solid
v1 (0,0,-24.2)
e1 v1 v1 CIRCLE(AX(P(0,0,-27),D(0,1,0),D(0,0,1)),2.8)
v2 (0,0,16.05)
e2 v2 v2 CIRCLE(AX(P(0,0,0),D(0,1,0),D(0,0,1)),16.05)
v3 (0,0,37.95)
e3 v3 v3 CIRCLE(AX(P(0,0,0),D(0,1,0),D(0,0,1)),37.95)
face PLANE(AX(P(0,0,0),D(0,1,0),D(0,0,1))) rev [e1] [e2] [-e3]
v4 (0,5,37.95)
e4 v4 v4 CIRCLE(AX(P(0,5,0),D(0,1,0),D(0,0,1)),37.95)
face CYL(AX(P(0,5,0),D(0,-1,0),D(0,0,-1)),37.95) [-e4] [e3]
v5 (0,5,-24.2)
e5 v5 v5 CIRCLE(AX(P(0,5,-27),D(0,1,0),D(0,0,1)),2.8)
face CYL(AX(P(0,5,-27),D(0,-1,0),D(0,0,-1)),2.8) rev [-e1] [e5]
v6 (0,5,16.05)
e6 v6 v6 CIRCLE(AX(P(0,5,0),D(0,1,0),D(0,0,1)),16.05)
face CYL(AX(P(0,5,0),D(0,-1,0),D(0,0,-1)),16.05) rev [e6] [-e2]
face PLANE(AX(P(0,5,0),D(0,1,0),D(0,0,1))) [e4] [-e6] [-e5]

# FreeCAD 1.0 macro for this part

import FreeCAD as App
import Part
import Sketcher

V = App.Vector

doc = App.newDocument("Part")
body = doc.addObject("PartDesign::Body", "Body")

# Sketch on XZ plane
sketch1 = body.newObject("Sketcher::SketchObject", "Sketch")
sketch1.AttachmentSupport = (doc.getObject("XZ_Plane"), [""])
sketch1.MapMode = "FlatFace"
sketch1.addGeometry([
    Part.Circle(V(0, 0, 0), V(0, 0, 1), 37.95),
    Part.Circle(V(0, -27, 0), V(0, 0, 1), 2.8),
    Part.Circle(V(0, 0, 0), V(0, 0, 1), 16.05),
], False)
sketch1.addConstraint([
    Sketcher.Constraint("Coincident", 0, 3, -1, 1),
    Sketcher.Constraint("Coincident", 2, 3, -1, 1),
    Sketcher.Constraint("PointOnObject", 1, 3, -2),
    Sketcher.Constraint("Diameter", 0, 75.9),
    Sketcher.Constraint("Diameter", 1, 5.6),
    Sketcher.Constraint("Diameter", 2, 32.1),
    Sketcher.Constraint("DistanceY", 1, 3, -1, 1, 27.0),
])
pad1 = body.newObject("PartDesign::Pad", "Pad")
pad1.Profile = sketch1
pad1.Length = 5
pad1.Reversed = True

doc.recompute()
